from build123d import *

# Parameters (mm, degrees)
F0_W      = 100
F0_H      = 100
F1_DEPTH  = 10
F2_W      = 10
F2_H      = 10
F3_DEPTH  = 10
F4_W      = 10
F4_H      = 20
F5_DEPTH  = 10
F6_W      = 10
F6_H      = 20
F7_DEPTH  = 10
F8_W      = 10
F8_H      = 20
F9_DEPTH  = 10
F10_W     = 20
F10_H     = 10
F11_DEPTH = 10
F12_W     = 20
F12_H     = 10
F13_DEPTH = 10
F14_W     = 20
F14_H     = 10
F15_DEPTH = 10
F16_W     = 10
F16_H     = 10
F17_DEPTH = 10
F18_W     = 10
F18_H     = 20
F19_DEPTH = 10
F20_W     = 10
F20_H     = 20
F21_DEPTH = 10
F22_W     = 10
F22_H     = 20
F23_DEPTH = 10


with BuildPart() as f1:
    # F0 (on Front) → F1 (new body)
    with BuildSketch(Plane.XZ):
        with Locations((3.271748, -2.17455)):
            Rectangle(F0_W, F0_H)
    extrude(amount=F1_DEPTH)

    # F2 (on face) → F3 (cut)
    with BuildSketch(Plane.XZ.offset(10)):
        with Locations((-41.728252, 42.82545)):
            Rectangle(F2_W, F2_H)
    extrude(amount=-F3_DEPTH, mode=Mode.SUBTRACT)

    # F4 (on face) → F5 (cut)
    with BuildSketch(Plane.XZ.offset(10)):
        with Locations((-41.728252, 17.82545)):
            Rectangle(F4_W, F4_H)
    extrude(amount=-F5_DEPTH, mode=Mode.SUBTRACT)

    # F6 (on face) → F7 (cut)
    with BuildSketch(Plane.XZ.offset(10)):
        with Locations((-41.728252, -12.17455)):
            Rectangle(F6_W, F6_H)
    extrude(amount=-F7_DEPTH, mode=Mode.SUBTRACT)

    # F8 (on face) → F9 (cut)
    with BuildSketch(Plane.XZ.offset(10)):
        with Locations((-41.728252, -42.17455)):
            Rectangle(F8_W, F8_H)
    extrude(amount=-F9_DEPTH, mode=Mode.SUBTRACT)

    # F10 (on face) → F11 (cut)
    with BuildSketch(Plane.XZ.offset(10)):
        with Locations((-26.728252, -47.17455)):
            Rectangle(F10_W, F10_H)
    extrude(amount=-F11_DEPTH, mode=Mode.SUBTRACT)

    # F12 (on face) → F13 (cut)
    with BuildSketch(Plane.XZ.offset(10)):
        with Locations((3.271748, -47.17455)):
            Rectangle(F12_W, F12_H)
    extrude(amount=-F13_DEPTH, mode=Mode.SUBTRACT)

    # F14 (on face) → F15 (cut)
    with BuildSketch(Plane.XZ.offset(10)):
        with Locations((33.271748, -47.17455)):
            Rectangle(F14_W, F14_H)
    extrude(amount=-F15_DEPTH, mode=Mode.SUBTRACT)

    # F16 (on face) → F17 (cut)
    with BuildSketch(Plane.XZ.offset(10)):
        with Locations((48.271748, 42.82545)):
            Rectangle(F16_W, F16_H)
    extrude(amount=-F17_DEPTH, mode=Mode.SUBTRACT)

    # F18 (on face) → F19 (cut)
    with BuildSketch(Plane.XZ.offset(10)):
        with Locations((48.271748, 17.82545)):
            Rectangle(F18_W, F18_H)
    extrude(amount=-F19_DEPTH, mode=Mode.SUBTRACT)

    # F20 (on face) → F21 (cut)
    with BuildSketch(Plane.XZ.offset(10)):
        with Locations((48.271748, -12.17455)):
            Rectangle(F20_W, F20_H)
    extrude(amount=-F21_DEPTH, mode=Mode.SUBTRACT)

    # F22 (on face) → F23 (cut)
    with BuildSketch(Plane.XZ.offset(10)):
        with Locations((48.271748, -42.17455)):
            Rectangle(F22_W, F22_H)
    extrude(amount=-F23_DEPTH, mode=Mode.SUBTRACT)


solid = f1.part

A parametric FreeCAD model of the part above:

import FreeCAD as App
import Part
import Sketcher

V = App.Vector
Q = App.Units.Quantity


def add_polygon(sketch, points):
    """Adds a closed chain of lines whose ends are joined by coincident constraints."""
    first, n = sketch.GeometryCount, len(points)
    for a, b in zip(points, points[1:] + points[:1]):
        sketch.addGeometry(Part.LineSegment(App.Vector(*a, 0), App.Vector(*b, 0)), False)
    for i in range(n):
        sketch.addConstraint(Sketcher.Constraint("Coincident", first + i, 2, first + (i + 1) % n, 1))

doc = App.newDocument("Part")
body = doc.addObject("PartDesign::Body", "Body")

sketch1 = body.newObject("Sketcher::SketchObject", "Sketch")
sketch1.AttachmentSupport = (doc.getObject("XZ_Plane"), [""])
sketch1.MapMode = "FlatFace"
add_polygon(sketch1, [(-47, 48), (-47, -52), (53, -52), (53, 48)])
sketch1.addConstraint([
    Sketcher.Constraint("Vertical", 0),
    Sketcher.Constraint("Horizontal", 1),
    Sketcher.Constraint("Vertical", 2),
    Sketcher.Constraint("Horizontal", 3),
    Sketcher.Constraint("Equal", 3, 0),
    Sketcher.Constraint("DistanceX", 1, 1, 1, 2, Q("100 mm")),
    Sketcher.Constraint("DistanceX", 0, 2, -1, 1, Q("46.728252 mm")),
    Sketcher.Constraint("DistanceY", 0, 2, -1, 1, Q("52.17455 mm")),
])
pad1 = body.newObject("PartDesign::Pad", "Pad")
pad1.Profile = sketch1
pad1.Length = 10

sketch2 = body.newObject("Sketcher::SketchObject", "Sketch001")
sketch2.AttachmentSupport = (doc.getObject("XZ_Plane"), [""])
sketch2.MapMode = "FlatFace"
sketch2.AttachmentOffset = App.Placement(V(0, 0, 10), App.Rotation())
add_polygon(sketch2, [(-47, 48), (-47, 38), (-37, 38), (-37, 48)])
sketch2.addConstraint([
    Sketcher.Constraint("Vertical", 0),
    Sketcher.Constraint("Horizontal", 1),
    Sketcher.Constraint("Vertical", 2),
    Sketcher.Constraint("Horizontal", 3),
    Sketcher.Constraint("Equal", 3, 0),
    Sketcher.Constraint("DistanceX", 1, 1, 1, 2, Q("10 mm")),
    Sketcher.Constraint("DistanceX", 0, 2, -1, 1, Q("46.728252 mm")),
    Sketcher.Constraint("DistanceY", -1, 1, 0, 2, Q("37.82545 mm")),
])
pocket1 = body.newObject("PartDesign::Pocket", "Pocket")
pocket1.Profile = sketch2
pocket1.Length = 10

sketch3 = body.newObject("Sketcher::SketchObject", "Sketch002")
sketch3.AttachmentSupport = (doc.getObject("XZ_Plane"), [""])
sketch3.MapMode = "FlatFace"
sketch3.AttachmentOffset = App.Placement(V(0, 0, 10), App.Rotation())
add_polygon(sketch3, [(-47, 28), (-47, 8), (-37, 8), (-37, 28)])
sketch3.addConstraint([
    Sketcher.Constraint("Vertical", 0),
    Sketcher.Constraint("Horizontal", 1),
    Sketcher.Constraint("Vertical", 2),
    Sketcher.Constraint("Horizontal", 3),
    Sketcher.Constraint("DistanceX", 1, 1, 1, 2, Q("10 mm")),
    Sketcher.Constraint("DistanceY", 0, 2, 0, 1, Q("20 mm")),
    Sketcher.Constraint("DistanceX", 0, 2, -1, 1, Q("46.728252 mm")),
    Sketcher.Constraint("DistanceY", -1, 1, 0, 2, Q("7.82545 mm")),
])
pocket2 = body.newObject("PartDesign::Pocket", "Pocket001")
pocket2.Profile = sketch3
pocket2.Length = 10

sketch4 = body.newObject("Sketcher::SketchObject", "Sketch003")
sketch4.AttachmentSupport = (doc.getObject("XZ_Plane"), [""])
sketch4.MapMode = "FlatFace"
sketch4.AttachmentOffset = App.Placement(V(0, 0, 10), App.Rotation())
add_polygon(sketch4, [(-47, -2), (-47, -22), (-37, -22), (-37, -2)])
sketch4.addConstraint([
    Sketcher.Constraint("Vertical", 0),
    Sketcher.Constraint("Horizontal", 1),
    Sketcher.Constraint("Vertical", 2),
    Sketcher.Constraint("Horizontal", 3),
    Sketcher.Constraint("DistanceX", 1, 1, 1, 2, Q("10 mm")),
    Sketcher.Constraint("DistanceY", 0, 2, 0, 1, Q("20 mm")),
    Sketcher.Constraint("DistanceX", 0, 2, -1, 1, Q("46.728252 mm")),
    Sketcher.Constraint("DistanceY", 0, 2, -1, 1, Q("22.17455 mm")),
])
pocket3 = body.newObject("PartDesign::Pocket", "Pocket002")
pocket3.Profile = sketch4
pocket3.Length = 10

sketch5 = body.newObject("Sketcher::SketchObject", "Sketch004")
sketch5.AttachmentSupport = (doc.getObject("XZ_Plane"), [""])
sketch5.MapMode = "FlatFace"
sketch5.AttachmentOffset = App.Placement(V(0, 0, 10), App.Rotation())
add_polygon(sketch5, [(-47, -32), (-47, -52), (-37, -52), (-37, -32)])
sketch5.addConstraint([
    Sketcher.Constraint("Vertical", 0),
    Sketcher.Constraint("Horizontal", 1),
    Sketcher.Constraint("Vertical", 2),
    Sketcher.Constraint("Horizontal", 3),
    Sketcher.Constraint("DistanceX", 1, 1, 1, 2, Q("10 mm")),
    Sketcher.Constraint("DistanceY", 0, 2, 0, 1, Q("20 mm")),
    Sketcher.Constraint("DistanceX", 0, 2, -1, 1, Q("46.728252 mm")),
    Sketcher.Constraint("DistanceY", 0, 2, -1, 1, Q("52.17455 mm")),
])
pocket4 = body.newObject("PartDesign::Pocket", "Pocket003")
pocket4.Profile = sketch5
pocket4.Length = 10

sketch6 = body.newObject("Sketcher::SketchObject", "Sketch005")
sketch6.AttachmentSupport = (doc.getObject("XZ_Plane"), [""])
sketch6.MapMode = "FlatFace"
sketch6.AttachmentOffset = App.Placement(V(0, 0, 10), App.Rotation())
add_polygon(sketch6, [(-37, -42), (-37, -52), (-17, -52), (-17, -42)])
sketch6.addConstraint([
    Sketcher.Constraint("Vertical", 0),
    Sketcher.Constraint("Horizontal", 1),
    Sketcher.Constraint("Vertical", 2),
    Sketcher.Constraint("Horizontal", 3),
    Sketcher.Constraint("DistanceX", 1, 1, 1, 2, Q("20 mm")),
    Sketcher.Constraint("DistanceY", 0, 2, 0, 1, Q("10 mm")),
    Sketcher.Constraint("DistanceX", 0, 2, -1, 1, Q("36.728252 mm")),
    Sketcher.Constraint("DistanceY", 0, 2, -1, 1, Q("52.17455 mm")),
])
pocket5 = body.newObject("PartDesign::Pocket", "Pocket004")
pocket5.Profile = sketch6
pocket5.Length = 10

sketch7 = body.newObject("Sketcher::SketchObject", "Sketch006")
sketch7.AttachmentSupport = (doc.getObject("XZ_Plane"), [""])
sketch7.MapMode = "FlatFace"
sketch7.AttachmentOffset = App.Placement(V(0, 0, 10), App.Rotation())
add_polygon(sketch7, [(-7, -42), (-7, -52), (13, -52), (13, -42)])
sketch7.addConstraint([
    Sketcher.Constraint("Vertical", 0),
    Sketcher.Constraint("Horizontal", 1),
    Sketcher.Constraint("Vertical", 2),
    Sketcher.Constraint("Horizontal", 3),
    Sketcher.Constraint("DistanceX", 1, 1, 1, 2, Q("20 mm")),
    Sketcher.Constraint("DistanceY", 0, 2, 0, 1, Q("10 mm")),
    Sketcher.Constraint("DistanceY", 0, 2, -1, 1, Q("52.17455 mm")),
    Sketcher.Constraint("DistanceX", 0, 2, -1, 1, Q("6.728252 mm")),
])
pocket6 = body.newObject("PartDesign::Pocket", "Pocket005")
pocket6.Profile = sketch7
pocket6.Length = 10

sketch8 = body.newObject("Sketcher::SketchObject", "Sketch007")
sketch8.AttachmentSupport = (doc.getObject("XZ_Plane"), [""])
sketch8.MapMode = "FlatFace"
sketch8.AttachmentOffset = App.Placement(V(0, 0, 10), App.Rotation())
add_polygon(sketch8, [(23, -42), (23, -52), (43, -52), (43, -42)])
sketch8.addConstraint([
    Sketcher.Constraint("Vertical", 0),
    Sketcher.Constraint("Horizontal", 1),
    Sketcher.Constraint("Vertical", 2),
    Sketcher.Constraint("Horizontal", 3),
    Sketcher.Constraint("DistanceX", 1, 1, 1, 2, Q("20 mm")),
    Sketcher.Constraint("DistanceY", 0, 2, 0, 1, Q("10 mm")),
    Sketcher.Constraint("DistanceY", 0, 2, -1, 1, Q("52.17455 mm")),
    Sketcher.Constraint("DistanceX", -1, 1, 1, 2, Q("43.271748 mm")),
])
pocket7 = body.newObject("PartDesign::Pocket", "Pocket006")
pocket7.Profile = sketch8
pocket7.Length = 10

sketch9 = body.newObject("Sketcher::SketchObject", "Sketch008")
sketch9.AttachmentSupport = (doc.getObject("XZ_Plane"), [""])
sketch9.MapMode = "FlatFace"
sketch9.AttachmentOffset = App.Placement(V(0, 0, 10), App.Rotation())
add_polygon(sketch9, [(43, 48), (43, 38), (53, 38), (53, 48)])
sketch9.addConstraint([
    Sketcher.Constraint("Vertical", 0),
    Sketcher.Constraint("Horizontal", 1),
    Sketcher.Constraint("Vertical", 2),
    Sketcher.Constraint("Horizontal", 3),
    Sketcher.Constraint("Equal", 3, 0),
    Sketcher.Constraint("DistanceX", 1, 1, 1, 2, Q("10 mm")),
    Sketcher.Constraint("DistanceX", -1, 1, 0, 2, Q("43.271748 mm")),
    Sketcher.Constraint("DistanceY", -1, 1, 0, 2, Q("37.82545 mm")),
])
pocket8 = body.newObject("PartDesign::Pocket", "Pocket007")
pocket8.Profile = sketch9
pocket8.Length = 10

sketch10 = body.newObject("Sketcher::SketchObject", "Sketch009")
sketch10.AttachmentSupport = (doc.getObject("XZ_Plane"), [""])
sketch10.MapMode = "FlatFace"
sketch10.AttachmentOffset = App.Placement(V(0, 0, 10), App.Rotation())
add_polygon(sketch10, [(43, 28), (43, 8), (53, 8), (53, 28)])
sketch10.addConstraint([
    Sketcher.Constraint("Vertical", 0),
    Sketcher.Constraint("Horizontal", 1),
    Sketcher.Constraint("Vertical", 2),
    Sketcher.Constraint("Horizontal", 3),
    Sketcher.Constraint("DistanceX", 1, 1, 1, 2, Q("10 mm")),
    Sketcher.Constraint("DistanceY", 0, 2, 0, 1, Q("20 mm")),
    Sketcher.Constraint("DistanceX", -1, 1, 0, 2, Q("43.271748 mm")),
    Sketcher.Constraint("DistanceY", -1, 1, 0, 2, Q("7.82545 mm")),
])
pocket9 = body.newObject("PartDesign::Pocket", "Pocket008")
pocket9.Profile = sketch10
pocket9.Length = 10

sketch11 = body.newObject("Sketcher::SketchObject", "Sketch010")
sketch11.AttachmentSupport = (doc.getObject("XZ_Plane"), [""])
sketch11.MapMode = "FlatFace"
sketch11.AttachmentOffset = App.Placement(V(0, 0, 10), App.Rotation())
add_polygon(sketch11, [(43, -2), (43, -22), (53, -22), (53, -2)])
sketch11.addConstraint([
    Sketcher.Constraint("Vertical", 0),
    Sketcher.Constraint("Horizontal", 1),
    Sketcher.Constraint("Vertical", 2),
    Sketcher.Constraint("Horizontal", 3),
    Sketcher.Constraint("DistanceX", 1, 1, 1, 2, Q("10 mm")),
    Sketcher.Constraint("DistanceY", 0, 2, 0, 1, Q("20 mm")),
    Sketcher.Constraint("DistanceX", -1, 1, 0, 2, Q("43.271748 mm")),
    Sketcher.Constraint("DistanceY", 0, 2, -1, 1, Q("22.17455 mm")),
])
pocket10 = body.newObject("PartDesign::Pocket", "Pocket009")
pocket10.Profile = sketch11
pocket10.Length = 10

sketch12 = body.newObject("Sketcher::SketchObject", "Sketch011")
sketch12.AttachmentSupport = (doc.getObject("XZ_Plane"), [""])
sketch12.MapMode = "FlatFace"
sketch12.AttachmentOffset = App.Placement(V(0, 0, 10), App.Rotation())
add_polygon(sketch12, [(43, -32), (43, -52), (53, -52), (53, -32)])
sketch12.addConstraint([
    Sketcher.Constraint("Vertical", 0),
    Sketcher.Constraint("Horizontal", 1),
    Sketcher.Constraint("Vertical", 2),
    Sketcher.Constraint("Horizontal", 3),
    Sketcher.Constraint("DistanceX", 1, 1, 1, 2, Q("10 mm")),
    Sketcher.Constraint("DistanceY", 0, 2, 0, 1, Q("20 mm")),
    Sketcher.Constraint("DistanceX", -1, 1, 0, 2, Q("43.271748 mm")),
    Sketcher.Constraint("DistanceY", 0, 2, -1, 1, Q("52.17455 mm")),
])
pocket11 = body.newObject("PartDesign::Pocket", "Pocket010")
pocket11.Profile = sketch12
pocket11.Length = 10

doc.recompute()
